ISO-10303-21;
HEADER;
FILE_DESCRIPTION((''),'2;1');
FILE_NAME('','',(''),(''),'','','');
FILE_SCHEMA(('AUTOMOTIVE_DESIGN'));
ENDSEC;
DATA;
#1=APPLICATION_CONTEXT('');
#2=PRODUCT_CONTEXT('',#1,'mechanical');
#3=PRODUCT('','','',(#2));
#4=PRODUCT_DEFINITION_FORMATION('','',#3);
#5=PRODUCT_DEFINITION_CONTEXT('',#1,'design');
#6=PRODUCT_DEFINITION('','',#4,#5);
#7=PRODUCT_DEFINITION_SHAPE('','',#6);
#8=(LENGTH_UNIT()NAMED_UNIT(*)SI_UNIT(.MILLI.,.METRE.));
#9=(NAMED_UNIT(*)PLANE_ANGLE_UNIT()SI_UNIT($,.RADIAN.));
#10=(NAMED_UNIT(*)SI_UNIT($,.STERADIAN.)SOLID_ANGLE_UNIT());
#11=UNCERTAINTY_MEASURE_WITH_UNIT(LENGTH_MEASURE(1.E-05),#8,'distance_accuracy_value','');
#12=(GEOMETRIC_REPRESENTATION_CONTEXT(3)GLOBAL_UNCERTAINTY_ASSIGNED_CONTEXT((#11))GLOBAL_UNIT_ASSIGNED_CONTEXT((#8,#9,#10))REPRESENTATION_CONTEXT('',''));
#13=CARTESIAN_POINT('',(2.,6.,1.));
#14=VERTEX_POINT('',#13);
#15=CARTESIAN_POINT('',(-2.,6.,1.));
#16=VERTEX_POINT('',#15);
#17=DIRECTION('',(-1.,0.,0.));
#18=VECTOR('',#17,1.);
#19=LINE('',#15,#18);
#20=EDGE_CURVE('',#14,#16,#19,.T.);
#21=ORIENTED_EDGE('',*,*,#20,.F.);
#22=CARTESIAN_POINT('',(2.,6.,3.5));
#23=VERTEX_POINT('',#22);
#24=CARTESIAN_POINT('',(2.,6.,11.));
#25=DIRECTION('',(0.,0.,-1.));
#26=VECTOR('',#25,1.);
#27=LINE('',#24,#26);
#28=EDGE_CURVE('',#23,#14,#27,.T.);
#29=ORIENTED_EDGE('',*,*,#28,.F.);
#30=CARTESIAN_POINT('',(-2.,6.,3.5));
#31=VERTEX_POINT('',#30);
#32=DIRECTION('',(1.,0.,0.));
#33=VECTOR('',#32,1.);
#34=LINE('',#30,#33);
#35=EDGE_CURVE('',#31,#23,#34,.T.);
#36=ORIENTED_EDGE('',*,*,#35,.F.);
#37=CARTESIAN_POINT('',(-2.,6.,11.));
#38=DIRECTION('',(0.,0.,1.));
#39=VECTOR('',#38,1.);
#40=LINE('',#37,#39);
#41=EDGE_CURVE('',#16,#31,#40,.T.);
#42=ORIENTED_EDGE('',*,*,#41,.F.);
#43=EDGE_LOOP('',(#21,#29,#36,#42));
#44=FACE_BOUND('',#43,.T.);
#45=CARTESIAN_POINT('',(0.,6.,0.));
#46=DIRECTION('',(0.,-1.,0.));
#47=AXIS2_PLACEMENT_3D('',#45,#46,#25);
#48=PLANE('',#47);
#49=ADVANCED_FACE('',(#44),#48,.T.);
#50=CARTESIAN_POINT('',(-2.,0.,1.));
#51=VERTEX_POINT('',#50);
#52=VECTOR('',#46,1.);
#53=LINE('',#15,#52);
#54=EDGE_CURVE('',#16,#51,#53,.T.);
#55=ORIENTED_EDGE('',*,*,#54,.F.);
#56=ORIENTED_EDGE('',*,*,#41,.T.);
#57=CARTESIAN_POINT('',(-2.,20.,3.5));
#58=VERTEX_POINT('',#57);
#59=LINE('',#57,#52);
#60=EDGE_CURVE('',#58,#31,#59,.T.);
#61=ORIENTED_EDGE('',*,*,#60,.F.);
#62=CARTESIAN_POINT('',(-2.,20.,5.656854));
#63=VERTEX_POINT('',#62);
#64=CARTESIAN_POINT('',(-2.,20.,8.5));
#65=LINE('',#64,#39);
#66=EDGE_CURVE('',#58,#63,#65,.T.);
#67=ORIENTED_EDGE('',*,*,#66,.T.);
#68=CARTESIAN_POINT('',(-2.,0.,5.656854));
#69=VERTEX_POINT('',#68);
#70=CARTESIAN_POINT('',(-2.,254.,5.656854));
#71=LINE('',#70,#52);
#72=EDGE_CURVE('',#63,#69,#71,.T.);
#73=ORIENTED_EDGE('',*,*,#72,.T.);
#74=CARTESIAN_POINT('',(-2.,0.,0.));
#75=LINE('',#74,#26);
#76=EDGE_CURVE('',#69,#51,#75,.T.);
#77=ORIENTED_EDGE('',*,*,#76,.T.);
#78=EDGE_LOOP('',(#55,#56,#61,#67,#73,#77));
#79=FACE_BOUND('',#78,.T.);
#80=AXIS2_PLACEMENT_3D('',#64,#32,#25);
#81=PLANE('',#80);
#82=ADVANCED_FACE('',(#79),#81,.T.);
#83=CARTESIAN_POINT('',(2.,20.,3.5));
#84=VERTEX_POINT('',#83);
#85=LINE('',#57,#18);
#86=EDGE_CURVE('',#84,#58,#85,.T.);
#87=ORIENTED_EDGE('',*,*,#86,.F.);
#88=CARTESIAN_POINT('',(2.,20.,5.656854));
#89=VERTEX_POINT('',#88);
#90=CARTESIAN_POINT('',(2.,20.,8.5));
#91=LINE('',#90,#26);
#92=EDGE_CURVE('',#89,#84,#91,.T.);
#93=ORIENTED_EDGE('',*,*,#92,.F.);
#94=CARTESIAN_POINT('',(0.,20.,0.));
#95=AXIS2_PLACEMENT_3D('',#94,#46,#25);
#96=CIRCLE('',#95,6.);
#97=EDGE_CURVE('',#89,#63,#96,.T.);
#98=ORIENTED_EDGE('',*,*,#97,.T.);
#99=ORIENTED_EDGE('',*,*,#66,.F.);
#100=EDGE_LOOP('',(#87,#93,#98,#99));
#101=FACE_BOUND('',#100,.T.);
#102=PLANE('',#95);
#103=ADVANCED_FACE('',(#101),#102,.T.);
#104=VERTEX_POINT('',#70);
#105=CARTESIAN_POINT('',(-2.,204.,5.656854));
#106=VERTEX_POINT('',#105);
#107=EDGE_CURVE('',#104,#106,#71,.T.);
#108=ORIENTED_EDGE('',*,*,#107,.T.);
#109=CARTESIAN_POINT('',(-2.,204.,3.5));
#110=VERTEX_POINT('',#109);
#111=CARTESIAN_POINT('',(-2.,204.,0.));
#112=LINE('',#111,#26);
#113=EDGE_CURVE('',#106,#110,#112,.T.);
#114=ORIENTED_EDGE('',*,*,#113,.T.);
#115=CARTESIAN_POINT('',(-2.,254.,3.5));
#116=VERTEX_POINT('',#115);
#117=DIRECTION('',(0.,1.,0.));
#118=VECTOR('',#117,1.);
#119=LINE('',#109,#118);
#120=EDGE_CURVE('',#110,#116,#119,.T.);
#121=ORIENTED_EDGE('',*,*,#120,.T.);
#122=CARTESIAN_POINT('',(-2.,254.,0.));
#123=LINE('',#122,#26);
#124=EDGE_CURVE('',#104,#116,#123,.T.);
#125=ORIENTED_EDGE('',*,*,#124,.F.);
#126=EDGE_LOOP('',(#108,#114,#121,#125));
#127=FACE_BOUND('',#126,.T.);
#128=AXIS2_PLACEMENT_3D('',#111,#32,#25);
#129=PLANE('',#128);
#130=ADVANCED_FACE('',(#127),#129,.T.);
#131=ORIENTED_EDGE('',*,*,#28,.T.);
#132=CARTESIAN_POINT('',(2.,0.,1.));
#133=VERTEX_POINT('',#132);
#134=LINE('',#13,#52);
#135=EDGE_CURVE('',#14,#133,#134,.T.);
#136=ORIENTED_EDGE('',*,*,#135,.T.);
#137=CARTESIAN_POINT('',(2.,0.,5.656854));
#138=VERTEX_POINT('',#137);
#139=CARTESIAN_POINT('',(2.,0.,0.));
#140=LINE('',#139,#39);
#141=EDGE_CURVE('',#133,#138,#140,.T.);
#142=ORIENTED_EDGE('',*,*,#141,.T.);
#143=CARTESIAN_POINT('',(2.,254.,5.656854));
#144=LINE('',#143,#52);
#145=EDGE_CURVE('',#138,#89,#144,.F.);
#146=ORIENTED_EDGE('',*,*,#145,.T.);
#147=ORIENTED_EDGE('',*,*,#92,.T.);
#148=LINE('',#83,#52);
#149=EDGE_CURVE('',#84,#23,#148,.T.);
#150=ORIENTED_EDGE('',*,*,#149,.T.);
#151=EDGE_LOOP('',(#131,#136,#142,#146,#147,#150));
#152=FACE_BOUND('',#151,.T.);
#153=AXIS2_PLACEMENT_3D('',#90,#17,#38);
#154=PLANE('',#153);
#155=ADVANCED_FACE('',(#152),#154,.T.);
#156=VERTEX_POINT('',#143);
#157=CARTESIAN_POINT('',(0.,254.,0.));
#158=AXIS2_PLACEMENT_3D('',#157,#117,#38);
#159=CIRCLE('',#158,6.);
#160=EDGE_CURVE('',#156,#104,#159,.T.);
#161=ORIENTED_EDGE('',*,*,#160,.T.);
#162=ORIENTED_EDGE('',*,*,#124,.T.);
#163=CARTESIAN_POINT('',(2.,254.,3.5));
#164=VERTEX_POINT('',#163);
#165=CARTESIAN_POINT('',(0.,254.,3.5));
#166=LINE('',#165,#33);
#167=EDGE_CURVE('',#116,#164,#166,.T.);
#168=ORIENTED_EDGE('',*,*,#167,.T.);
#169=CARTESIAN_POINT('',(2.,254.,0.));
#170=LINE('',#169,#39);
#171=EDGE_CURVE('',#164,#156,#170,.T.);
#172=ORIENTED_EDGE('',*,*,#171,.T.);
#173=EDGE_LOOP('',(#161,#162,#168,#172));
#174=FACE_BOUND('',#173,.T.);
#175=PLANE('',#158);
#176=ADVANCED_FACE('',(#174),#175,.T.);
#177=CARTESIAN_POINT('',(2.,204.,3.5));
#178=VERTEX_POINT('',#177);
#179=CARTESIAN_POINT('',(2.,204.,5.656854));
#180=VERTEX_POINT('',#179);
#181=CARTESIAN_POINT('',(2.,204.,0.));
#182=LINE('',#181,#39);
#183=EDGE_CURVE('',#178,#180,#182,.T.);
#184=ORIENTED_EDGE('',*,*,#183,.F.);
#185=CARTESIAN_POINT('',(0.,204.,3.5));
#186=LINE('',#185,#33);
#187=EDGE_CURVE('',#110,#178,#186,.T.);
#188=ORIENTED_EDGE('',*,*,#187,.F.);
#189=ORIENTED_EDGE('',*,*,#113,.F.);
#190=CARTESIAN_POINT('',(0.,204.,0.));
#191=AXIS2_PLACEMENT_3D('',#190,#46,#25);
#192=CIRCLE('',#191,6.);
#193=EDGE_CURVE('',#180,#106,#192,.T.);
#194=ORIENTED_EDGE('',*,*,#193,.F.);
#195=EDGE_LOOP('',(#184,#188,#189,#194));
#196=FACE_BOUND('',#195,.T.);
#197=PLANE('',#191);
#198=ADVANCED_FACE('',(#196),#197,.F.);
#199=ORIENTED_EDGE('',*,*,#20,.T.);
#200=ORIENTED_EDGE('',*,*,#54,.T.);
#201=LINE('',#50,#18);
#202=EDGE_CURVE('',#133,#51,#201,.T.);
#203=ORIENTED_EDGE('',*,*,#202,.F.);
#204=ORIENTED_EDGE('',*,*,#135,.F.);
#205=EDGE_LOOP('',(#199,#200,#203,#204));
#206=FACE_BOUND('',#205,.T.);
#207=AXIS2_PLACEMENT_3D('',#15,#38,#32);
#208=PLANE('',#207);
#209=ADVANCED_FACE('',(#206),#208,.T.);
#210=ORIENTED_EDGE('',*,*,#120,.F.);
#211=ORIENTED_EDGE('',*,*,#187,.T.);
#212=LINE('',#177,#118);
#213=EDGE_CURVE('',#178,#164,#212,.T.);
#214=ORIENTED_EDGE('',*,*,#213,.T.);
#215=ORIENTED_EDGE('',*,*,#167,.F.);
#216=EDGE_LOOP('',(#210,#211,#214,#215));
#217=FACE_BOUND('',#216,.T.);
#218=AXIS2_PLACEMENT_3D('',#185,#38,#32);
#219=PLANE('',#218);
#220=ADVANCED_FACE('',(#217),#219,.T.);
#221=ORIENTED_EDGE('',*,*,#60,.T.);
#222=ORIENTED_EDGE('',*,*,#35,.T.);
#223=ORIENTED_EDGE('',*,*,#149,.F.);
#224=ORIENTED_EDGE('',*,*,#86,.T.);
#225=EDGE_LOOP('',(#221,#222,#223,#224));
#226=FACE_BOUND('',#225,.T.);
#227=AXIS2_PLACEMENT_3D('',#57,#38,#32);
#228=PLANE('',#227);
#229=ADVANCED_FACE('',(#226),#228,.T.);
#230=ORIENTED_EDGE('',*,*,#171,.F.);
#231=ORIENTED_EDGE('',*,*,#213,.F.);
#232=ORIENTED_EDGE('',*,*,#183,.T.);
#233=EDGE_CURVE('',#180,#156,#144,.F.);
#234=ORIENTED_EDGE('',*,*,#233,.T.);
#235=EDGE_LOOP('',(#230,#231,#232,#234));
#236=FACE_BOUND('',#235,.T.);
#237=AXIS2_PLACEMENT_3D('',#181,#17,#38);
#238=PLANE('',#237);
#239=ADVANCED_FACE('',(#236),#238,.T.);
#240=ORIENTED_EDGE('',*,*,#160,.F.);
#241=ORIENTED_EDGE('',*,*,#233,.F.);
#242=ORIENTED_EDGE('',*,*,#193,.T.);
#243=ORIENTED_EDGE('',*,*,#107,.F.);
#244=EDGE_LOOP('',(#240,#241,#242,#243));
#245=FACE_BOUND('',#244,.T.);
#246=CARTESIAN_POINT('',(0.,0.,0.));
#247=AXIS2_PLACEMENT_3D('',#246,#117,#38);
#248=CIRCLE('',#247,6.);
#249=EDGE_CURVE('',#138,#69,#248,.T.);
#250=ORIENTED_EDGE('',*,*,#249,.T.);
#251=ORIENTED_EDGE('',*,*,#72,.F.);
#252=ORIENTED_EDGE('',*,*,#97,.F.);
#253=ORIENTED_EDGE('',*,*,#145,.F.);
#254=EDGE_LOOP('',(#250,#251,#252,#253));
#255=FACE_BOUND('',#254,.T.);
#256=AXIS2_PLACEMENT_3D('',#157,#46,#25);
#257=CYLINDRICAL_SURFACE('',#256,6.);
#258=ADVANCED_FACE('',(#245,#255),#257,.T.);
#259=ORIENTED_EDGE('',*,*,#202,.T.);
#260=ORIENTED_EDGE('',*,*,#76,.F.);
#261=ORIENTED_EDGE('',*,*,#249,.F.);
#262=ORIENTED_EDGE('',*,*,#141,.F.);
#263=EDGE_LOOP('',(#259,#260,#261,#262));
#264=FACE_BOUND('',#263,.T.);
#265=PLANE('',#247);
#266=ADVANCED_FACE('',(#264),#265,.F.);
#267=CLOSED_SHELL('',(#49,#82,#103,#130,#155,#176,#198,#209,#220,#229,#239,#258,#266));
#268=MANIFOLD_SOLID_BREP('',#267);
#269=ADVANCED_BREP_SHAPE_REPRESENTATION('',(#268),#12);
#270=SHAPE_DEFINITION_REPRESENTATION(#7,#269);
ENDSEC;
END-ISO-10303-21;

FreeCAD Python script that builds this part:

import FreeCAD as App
import Part
import Sketcher
Q = App.Units.Quantity


def add_polygon(sketch, points):
    """Adds a closed chain of lines whose ends are joined by coincident constraints."""
    first, n = sketch.GeometryCount, len(points)
    for a, b in zip(points, points[1:] + points[:1]):
        sketch.addGeometry(Part.LineSegment(App.Vector(*a, 0), App.Vector(*b, 0)), False)
    for i in range(n):
        sketch.addConstraint(Sketcher.Constraint("Coincident", first + i, 2, first + (i + 1) % n, 1))

doc = App.newDocument("Part")
body = doc.addObject("PartDesign::Body", "Body")

# Sketch on XZ plane
sketch1 = doc.addObject("Sketcher::SketchObject", "Sketch")
body.addObject(sketch1)
sketch1.AttachmentSupport = (doc.XZ_Plane, [""])
sketch1.MapMode = "FlatFace"
sketch1.addGeometry(Part.Circle(App.Vector(0, 0, 0), App.Vector(0, 0, 1), 6), False)
sketch1.addConstraint([
    Sketcher.Constraint("Coincident", 0, 3, -1, 1),
    Sketcher.Constraint("Diameter", 0, Q("12 mm")),
])
pad1 = doc.addObject("PartDesign::Pad", "Pad")
body.addObject(pad1)
pad1.Profile = sketch1
pad1.Length = 254
pad1.Reversed = True

# Sketch on XZ plane
sketch2 = doc.addObject("Sketcher::SketchObject", "Sketch001")
body.addObject(sketch2)
sketch2.AttachmentSupport = (doc.XZ_Plane, [""])
sketch2.MapMode = "FlatFace"
add_polygon(sketch2, [(-2, 3.5), (-2, 8.5), (2, 8.5), (2, 3.5)])  # lines 0-3
sketch2.addConstraint([
    Sketcher.Constraint("Vertical", 0),
    Sketcher.Constraint("Horizontal", 1),
    Sketcher.Constraint("Vertical", 2),
    Sketcher.Constraint("Horizontal", 3),
    Sketcher.Constraint("DistanceX", 1, 1, 1, 2, Q("4 mm")),
    Sketcher.Constraint("DistanceY", 0, 1, 0, 2, Q("5 mm")),
    Sketcher.Constraint("DistanceX", 0, 2, -1, 1, Q("2 mm")),
    Sketcher.Constraint("DistanceY", -1, 1, 0, 2, Q("8.5 mm")),
])
pocket1 = doc.addObject("PartDesign::Pocket", "Pocket")
body.addObject(pocket1)
pocket1.Profile = sketch2
pocket1.Type = "TwoLengths"
pocket1.Length = 20
pocket1.Length2 = 0.0001

# Sketch on XZ plane
sketch3 = doc.addObject("Sketcher::SketchObject", "Sketch002")
body.addObject(sketch3)
sketch3.AttachmentSupport = (doc.XZ_Plane, [""])
sketch3.MapMode = "FlatFace"
sketch3.AttachmentOffset = App.Placement(App.Vector(0, 0, -254), App.Rotation())
add_polygon(sketch3, [(-2, 3.5), (-2, 8.5), (2, 8.5), (2, 3.5)])  # lines 0-3
sketch3.addConstraint([
    Sketcher.Constraint("Vertical", 0),
    Sketcher.Constraint("Horizontal", 1),
    Sketcher.Constraint("Vertical", 2),
    Sketcher.Constraint("Horizontal", 3),
    Sketcher.Constraint("DistanceX", 1, 1, 1, 2, Q("4 mm")),
    Sketcher.Constraint("DistanceY", 0, 1, 0, 2, Q("5 mm")),
    Sketcher.Constraint("DistanceX", 0, 2, -1, 1, Q("2 mm")),
    Sketcher.Constraint("DistanceY", -1, 1, 0, 2, Q("8.5 mm")),
])
pocket2 = doc.addObject("PartDesign::Pocket", "Pocket001")
body.addObject(pocket2)
pocket2.Profile = sketch3
pocket2.Length = 50
pocket2.Reversed = True

# Sketch on XZ plane
sketch4 = doc.addObject("Sketcher::SketchObject", "Sketch003")
body.addObject(sketch4)
sketch4.AttachmentSupport = (doc.XZ_Plane, [""])
sketch4.MapMode = "FlatFace"
add_polygon(sketch4, [(-2, 1), (-2, 11), (2, 11), (2, 1)])  # lines 0-3
sketch4.addConstraint([
    Sketcher.Constraint("Vertical", 0),
    Sketcher.Constraint("Horizontal", 1),
    Sketcher.Constraint("Vertical", 2),
    Sketcher.Constraint("Horizontal", 3),
    Sketcher.Constraint("DistanceX", 1, 1, 1, 2, Q("4 mm")),
    Sketcher.Constraint("DistanceY", 0, 1, 0, 2, Q("10 mm")),
    Sketcher.Constraint("DistanceX", 0, 2, -1, 1, Q("2 mm")),
    Sketcher.Constraint("DistanceY", -1, 1, 0, 2, Q("11 mm")),
])
pocket3 = doc.addObject("PartDesign::Pocket", "Pocket002")
body.addObject(pocket3)
pocket3.Profile = sketch4
pocket3.Length = 6

doc.recompute()
